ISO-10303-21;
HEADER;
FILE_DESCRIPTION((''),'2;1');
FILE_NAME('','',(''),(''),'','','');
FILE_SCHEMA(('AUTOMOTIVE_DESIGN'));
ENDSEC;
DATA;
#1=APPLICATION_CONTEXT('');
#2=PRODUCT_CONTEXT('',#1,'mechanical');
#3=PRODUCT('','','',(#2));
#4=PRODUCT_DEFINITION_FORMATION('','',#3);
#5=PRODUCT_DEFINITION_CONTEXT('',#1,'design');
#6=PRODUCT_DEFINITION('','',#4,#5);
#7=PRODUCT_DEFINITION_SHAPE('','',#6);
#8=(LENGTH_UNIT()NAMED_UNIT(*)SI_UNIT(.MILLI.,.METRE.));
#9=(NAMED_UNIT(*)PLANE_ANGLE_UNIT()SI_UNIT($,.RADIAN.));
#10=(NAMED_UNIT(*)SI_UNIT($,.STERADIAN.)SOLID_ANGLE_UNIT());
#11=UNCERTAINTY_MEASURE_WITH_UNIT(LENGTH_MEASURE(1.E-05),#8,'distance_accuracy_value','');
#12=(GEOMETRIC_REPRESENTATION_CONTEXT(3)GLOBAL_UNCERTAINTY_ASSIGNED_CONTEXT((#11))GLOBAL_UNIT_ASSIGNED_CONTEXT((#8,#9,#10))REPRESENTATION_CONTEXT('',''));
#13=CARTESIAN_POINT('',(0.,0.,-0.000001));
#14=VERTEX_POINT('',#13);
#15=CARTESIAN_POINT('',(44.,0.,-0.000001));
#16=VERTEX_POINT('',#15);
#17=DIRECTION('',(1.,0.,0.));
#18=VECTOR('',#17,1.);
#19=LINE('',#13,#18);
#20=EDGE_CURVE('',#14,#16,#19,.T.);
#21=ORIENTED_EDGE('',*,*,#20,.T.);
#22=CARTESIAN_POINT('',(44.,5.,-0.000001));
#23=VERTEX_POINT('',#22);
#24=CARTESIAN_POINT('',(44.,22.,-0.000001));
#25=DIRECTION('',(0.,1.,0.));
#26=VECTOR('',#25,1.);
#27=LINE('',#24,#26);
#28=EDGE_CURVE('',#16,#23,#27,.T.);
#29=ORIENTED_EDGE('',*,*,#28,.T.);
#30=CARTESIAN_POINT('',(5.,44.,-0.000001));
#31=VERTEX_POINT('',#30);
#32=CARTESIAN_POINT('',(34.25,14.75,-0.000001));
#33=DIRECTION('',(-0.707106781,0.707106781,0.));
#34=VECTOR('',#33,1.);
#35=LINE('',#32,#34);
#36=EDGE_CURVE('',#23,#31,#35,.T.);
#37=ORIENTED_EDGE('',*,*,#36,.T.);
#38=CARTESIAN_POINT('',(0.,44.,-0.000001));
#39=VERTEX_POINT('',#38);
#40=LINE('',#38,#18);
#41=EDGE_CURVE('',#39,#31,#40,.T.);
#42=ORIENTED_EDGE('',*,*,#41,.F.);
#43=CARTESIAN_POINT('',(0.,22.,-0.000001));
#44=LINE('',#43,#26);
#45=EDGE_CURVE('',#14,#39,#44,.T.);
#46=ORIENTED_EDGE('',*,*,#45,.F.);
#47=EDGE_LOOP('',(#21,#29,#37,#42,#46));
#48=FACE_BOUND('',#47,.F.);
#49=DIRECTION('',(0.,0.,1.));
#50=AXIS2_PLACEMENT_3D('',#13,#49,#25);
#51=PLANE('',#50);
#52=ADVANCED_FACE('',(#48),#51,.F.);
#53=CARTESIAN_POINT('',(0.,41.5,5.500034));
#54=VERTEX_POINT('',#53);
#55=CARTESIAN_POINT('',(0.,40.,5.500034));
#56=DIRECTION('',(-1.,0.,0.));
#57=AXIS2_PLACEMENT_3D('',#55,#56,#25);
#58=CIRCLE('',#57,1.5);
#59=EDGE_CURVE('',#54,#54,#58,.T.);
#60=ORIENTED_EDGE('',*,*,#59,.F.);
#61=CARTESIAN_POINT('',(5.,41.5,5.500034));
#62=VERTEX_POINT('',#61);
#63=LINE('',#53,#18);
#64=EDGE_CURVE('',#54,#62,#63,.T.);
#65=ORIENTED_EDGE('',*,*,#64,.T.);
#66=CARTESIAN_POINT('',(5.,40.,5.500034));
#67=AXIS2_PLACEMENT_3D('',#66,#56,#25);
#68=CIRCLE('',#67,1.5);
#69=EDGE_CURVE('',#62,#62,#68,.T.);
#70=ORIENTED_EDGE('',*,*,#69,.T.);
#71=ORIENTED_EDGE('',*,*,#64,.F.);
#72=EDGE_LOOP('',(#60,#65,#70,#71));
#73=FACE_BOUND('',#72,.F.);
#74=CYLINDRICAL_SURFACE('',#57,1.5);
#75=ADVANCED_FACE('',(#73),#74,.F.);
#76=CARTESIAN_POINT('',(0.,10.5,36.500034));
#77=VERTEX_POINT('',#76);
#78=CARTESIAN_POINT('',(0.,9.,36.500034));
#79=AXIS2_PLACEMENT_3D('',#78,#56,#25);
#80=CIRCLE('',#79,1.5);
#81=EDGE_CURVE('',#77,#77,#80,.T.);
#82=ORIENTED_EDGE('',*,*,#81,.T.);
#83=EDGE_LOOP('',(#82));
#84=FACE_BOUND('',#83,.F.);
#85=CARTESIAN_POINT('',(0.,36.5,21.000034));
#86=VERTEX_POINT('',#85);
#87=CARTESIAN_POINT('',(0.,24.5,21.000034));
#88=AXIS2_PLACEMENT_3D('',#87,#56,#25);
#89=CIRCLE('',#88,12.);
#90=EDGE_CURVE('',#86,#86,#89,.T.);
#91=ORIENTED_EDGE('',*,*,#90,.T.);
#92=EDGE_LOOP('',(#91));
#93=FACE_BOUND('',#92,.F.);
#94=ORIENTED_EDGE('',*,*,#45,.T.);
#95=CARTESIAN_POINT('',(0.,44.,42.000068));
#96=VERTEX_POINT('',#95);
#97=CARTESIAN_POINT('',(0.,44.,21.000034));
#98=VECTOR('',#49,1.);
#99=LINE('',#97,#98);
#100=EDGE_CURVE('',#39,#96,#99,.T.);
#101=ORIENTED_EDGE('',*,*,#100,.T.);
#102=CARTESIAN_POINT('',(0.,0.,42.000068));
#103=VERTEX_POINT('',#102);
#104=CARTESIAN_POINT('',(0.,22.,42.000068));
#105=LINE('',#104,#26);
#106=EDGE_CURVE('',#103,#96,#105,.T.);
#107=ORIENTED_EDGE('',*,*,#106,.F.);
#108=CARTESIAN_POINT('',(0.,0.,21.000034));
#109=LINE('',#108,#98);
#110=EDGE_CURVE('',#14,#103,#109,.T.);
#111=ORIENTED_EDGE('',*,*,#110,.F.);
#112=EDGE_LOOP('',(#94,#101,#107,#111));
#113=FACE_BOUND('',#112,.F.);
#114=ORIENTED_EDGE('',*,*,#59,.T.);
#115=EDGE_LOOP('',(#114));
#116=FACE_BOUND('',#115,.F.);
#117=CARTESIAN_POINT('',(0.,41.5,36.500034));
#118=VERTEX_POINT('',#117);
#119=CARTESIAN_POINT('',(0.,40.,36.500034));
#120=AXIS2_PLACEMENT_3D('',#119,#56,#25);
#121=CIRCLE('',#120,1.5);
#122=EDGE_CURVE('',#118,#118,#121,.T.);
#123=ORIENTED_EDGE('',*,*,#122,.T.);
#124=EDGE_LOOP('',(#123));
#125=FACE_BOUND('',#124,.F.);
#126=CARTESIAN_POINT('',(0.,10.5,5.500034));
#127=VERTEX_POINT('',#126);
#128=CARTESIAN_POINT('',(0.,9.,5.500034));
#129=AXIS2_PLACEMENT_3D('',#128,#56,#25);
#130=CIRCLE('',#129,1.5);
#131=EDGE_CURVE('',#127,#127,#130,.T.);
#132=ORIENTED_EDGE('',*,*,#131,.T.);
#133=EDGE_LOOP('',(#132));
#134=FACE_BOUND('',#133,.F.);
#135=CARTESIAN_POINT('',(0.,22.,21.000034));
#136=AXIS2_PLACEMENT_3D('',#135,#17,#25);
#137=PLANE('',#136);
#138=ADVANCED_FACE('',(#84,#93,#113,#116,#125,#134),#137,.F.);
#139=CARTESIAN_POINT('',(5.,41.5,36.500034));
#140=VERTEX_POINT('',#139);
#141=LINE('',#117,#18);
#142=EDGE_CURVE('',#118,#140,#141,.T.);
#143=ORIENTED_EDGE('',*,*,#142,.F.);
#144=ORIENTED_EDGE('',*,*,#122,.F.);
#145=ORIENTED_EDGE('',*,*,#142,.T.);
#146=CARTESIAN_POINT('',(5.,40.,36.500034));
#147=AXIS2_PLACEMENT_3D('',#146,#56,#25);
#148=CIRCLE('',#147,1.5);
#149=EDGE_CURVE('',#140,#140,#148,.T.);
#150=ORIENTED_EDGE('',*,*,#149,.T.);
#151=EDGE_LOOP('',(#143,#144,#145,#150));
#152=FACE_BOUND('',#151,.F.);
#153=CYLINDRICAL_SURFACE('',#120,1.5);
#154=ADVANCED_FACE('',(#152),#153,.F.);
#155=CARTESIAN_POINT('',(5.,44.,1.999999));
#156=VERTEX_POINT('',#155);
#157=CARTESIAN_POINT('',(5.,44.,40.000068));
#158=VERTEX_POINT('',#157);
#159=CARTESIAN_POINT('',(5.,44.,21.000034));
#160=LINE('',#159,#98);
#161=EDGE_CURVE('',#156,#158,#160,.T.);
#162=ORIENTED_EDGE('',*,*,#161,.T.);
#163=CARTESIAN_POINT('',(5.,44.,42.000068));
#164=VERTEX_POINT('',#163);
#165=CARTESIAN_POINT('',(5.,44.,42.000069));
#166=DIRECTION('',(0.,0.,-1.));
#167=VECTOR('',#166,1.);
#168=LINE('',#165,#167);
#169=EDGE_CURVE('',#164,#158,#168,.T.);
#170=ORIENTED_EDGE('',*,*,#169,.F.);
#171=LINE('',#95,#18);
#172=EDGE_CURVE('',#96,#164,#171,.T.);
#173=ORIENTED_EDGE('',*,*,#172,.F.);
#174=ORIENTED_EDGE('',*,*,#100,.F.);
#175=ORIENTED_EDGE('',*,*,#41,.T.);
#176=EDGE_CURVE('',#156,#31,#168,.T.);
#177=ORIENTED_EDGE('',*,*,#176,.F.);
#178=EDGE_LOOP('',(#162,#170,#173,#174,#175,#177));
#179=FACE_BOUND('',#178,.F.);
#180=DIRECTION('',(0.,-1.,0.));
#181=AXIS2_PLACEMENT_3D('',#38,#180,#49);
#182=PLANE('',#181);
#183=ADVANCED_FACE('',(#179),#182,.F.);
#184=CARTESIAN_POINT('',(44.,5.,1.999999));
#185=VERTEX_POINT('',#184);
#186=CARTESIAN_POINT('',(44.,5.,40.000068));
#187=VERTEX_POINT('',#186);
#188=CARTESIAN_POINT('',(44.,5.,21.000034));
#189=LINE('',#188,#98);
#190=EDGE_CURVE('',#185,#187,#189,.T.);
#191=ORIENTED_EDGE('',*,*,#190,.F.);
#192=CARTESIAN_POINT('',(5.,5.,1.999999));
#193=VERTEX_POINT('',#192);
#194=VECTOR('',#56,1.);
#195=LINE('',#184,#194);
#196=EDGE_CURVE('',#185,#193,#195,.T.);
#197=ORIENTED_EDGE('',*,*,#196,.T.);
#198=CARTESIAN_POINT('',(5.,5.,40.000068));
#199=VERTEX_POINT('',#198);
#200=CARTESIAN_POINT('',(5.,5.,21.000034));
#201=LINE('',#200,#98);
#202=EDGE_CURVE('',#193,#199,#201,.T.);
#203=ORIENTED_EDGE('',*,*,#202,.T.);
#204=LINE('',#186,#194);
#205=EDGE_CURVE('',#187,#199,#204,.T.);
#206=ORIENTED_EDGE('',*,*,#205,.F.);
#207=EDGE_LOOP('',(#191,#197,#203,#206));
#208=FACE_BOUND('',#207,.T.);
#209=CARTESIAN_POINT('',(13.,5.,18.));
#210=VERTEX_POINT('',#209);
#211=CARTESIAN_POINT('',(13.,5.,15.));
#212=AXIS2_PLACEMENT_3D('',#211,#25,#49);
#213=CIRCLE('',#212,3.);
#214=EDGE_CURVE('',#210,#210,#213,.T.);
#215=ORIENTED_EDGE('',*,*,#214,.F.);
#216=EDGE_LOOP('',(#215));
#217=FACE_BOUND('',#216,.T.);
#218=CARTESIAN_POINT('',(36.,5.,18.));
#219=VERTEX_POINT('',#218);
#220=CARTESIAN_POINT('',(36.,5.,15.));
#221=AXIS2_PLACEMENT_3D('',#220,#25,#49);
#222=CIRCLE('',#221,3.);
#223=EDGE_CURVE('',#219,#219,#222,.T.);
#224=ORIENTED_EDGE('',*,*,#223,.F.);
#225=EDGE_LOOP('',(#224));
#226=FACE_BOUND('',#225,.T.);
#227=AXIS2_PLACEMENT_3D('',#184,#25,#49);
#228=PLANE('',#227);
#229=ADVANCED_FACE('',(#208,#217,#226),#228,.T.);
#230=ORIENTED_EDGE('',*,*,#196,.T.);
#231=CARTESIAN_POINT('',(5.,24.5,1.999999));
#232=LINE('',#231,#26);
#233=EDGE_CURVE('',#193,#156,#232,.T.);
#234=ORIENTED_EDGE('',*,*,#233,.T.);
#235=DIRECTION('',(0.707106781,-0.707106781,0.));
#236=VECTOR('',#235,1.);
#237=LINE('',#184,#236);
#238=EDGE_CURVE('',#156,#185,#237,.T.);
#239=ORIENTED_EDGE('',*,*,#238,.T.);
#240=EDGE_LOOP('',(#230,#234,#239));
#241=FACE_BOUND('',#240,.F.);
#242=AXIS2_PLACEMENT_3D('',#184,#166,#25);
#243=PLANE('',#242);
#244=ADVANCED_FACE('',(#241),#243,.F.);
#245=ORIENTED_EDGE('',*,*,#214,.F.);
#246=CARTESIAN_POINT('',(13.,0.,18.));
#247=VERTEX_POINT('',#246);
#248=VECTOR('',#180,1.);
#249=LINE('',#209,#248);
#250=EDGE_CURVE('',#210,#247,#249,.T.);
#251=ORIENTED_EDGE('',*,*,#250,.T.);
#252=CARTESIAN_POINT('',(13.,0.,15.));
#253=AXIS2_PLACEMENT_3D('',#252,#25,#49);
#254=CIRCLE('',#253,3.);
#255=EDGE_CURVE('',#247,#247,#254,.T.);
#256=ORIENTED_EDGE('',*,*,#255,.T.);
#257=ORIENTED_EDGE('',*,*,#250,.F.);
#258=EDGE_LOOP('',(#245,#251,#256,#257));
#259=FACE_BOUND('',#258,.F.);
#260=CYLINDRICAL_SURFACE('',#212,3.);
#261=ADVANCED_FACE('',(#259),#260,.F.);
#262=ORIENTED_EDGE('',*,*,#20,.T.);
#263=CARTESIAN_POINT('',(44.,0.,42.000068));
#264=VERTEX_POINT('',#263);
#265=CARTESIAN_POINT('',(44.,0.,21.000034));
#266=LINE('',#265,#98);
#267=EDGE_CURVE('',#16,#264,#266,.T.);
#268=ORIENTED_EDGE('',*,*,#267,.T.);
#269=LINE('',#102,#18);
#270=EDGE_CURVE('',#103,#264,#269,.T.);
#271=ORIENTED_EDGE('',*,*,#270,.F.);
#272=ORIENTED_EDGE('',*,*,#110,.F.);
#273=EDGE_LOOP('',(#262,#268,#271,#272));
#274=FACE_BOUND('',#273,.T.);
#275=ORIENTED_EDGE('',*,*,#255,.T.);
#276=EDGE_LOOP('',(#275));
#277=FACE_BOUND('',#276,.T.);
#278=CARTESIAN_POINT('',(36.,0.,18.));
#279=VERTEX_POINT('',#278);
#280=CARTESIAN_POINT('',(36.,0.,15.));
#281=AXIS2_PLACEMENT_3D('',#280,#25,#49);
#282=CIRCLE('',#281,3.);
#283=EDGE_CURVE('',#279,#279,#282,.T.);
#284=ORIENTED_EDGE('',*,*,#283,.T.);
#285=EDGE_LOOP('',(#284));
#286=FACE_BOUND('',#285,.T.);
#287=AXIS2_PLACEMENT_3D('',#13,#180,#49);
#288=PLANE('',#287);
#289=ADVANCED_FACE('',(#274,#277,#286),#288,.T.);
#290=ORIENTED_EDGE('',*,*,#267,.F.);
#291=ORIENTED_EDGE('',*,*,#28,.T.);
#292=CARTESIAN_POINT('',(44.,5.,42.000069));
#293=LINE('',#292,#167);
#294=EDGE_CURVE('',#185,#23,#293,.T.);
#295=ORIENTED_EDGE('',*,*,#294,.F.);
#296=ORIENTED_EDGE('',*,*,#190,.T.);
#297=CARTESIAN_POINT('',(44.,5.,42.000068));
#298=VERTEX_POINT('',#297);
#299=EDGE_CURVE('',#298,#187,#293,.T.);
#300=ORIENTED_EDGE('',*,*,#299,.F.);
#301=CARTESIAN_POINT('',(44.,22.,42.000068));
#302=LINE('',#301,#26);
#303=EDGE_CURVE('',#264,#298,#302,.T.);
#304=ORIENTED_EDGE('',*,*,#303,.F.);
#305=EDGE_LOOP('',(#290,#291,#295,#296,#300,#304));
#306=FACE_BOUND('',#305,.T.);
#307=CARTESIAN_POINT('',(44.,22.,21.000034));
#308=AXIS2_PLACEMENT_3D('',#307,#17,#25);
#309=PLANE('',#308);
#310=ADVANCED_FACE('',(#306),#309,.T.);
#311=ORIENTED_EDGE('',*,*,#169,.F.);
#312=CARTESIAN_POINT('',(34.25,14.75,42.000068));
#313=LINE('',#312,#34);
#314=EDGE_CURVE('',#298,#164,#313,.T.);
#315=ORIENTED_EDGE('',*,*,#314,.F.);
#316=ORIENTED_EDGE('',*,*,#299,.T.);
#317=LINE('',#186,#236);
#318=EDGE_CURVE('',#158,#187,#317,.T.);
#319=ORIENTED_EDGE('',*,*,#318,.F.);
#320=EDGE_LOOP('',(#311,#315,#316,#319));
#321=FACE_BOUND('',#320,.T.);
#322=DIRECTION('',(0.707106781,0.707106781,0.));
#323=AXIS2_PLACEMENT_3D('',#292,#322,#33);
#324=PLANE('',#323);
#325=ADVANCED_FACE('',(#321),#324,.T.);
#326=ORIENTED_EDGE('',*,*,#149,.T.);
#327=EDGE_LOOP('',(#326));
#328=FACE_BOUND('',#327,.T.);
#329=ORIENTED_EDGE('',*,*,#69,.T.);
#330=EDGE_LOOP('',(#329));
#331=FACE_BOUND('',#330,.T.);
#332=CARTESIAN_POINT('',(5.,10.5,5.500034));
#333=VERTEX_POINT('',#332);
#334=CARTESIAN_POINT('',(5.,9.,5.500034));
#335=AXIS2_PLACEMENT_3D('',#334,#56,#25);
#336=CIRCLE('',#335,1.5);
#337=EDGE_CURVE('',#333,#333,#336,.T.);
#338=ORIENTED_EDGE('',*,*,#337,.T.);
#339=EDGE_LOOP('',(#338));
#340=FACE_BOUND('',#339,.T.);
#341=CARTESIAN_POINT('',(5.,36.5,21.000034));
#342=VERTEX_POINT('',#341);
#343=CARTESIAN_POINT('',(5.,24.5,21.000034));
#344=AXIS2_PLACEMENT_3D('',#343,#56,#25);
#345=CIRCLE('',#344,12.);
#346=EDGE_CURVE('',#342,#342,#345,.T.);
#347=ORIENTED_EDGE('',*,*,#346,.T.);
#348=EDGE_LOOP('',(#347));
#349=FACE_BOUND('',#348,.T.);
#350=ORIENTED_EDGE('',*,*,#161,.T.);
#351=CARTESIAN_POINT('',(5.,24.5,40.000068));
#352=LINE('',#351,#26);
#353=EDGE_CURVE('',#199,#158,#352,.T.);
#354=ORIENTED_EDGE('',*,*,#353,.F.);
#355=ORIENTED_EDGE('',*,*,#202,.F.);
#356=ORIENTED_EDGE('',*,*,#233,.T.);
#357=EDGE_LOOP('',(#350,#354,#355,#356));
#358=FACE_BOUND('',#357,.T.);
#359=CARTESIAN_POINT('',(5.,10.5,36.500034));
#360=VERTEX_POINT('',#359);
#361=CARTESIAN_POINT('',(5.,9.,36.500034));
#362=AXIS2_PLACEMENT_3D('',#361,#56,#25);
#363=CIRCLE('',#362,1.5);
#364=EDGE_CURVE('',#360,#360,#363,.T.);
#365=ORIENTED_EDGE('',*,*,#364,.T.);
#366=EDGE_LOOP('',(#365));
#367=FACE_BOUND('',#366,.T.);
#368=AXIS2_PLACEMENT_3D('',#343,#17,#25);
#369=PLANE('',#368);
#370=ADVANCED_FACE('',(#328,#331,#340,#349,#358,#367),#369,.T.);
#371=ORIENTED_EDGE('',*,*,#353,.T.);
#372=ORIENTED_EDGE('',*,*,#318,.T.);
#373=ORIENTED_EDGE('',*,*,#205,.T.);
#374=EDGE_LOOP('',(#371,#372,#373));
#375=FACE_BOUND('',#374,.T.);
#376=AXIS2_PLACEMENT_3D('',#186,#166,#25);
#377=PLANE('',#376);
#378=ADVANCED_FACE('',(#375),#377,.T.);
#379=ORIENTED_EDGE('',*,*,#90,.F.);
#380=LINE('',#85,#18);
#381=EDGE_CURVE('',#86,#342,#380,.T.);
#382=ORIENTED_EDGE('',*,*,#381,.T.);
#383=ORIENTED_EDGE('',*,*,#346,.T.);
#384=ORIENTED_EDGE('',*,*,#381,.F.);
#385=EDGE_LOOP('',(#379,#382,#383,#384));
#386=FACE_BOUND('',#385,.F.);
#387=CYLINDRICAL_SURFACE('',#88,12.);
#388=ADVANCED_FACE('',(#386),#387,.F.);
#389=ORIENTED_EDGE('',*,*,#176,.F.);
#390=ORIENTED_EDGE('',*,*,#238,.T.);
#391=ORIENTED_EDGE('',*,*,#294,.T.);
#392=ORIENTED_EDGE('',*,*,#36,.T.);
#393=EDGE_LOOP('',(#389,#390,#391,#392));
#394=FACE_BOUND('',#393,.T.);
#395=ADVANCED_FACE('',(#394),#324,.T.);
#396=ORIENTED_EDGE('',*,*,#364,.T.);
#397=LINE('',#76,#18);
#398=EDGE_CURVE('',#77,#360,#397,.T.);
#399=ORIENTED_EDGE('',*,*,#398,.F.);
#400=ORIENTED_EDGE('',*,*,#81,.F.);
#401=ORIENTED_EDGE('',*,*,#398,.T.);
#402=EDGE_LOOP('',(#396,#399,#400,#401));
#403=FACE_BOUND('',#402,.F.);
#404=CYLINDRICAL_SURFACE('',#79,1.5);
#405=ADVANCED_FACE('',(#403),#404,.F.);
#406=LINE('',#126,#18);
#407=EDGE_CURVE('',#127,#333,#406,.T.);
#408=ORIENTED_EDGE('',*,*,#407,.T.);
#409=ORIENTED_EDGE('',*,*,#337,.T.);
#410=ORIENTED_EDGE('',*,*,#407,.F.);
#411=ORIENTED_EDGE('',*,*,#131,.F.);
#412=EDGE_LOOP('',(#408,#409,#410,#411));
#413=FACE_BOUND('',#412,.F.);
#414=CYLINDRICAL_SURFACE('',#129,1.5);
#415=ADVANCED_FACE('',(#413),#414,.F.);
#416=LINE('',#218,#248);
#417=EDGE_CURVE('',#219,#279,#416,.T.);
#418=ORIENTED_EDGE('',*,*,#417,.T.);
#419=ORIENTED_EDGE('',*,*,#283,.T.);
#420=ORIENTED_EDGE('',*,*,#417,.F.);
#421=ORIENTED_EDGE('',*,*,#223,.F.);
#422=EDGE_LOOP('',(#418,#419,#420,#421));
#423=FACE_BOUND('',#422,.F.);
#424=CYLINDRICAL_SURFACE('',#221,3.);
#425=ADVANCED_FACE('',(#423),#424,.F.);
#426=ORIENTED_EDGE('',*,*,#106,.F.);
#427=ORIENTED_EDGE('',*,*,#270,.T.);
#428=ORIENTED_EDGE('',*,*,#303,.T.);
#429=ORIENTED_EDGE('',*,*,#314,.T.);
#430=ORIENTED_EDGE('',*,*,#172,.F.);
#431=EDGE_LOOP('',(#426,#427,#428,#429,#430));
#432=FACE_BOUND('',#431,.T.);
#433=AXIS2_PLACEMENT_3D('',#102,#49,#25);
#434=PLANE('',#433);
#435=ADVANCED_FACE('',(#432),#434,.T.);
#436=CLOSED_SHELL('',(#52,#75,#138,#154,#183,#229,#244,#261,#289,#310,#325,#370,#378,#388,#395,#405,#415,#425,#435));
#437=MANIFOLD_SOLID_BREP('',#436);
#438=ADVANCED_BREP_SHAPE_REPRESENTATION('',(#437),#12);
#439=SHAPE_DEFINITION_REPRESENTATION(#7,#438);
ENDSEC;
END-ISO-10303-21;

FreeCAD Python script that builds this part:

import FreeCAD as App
import Part
import Sketcher


def add_polygon(sketch, points):
    """Adds a closed chain of lines whose ends are joined by coincident constraints."""
    first, n = sketch.GeometryCount, len(points)
    for a, b in zip(points, points[1:] + points[:1]):
        sketch.addGeometry(Part.LineSegment(App.Vector(*a, 0), App.Vector(*b, 0)), False)
    for i in range(n):
        sketch.addConstraint(Sketcher.Constraint("Coincident", first + i, 2, first + (i + 1) % n, 1))

doc = App.newDocument("Part")
body = doc.addObject("PartDesign::Body", "Body")

# Sketch on YZ plane
sketch1 = doc.addObject("Sketcher::SketchObject", "Sketch")
body.addObject(sketch1)
sketch1.AttachmentSupport = (doc.YZ_Plane, [""])
sketch1.MapMode = "FlatFace"
add_polygon(sketch1, [(0, 42), (0, 0), (44, 0), (44, 42)])  # lines 0-3
sketch1.addConstraint(Sketcher.Constraint("Vertical", 0))
sketch1.addConstraint(Sketcher.Constraint("Horizontal", 1))
sketch1.addConstraint(Sketcher.Constraint("Vertical", 2))
sketch1.addConstraint(Sketcher.Constraint("Horizontal", 3))
sketch1.addConstraint(Sketcher.Constraint("Coincident", 0, 2, -1, 1))
sketch1.addConstraint(Sketcher.Constraint("DistanceX", 1, 1, 1, 2, 44.0))
sketch1.addConstraint(Sketcher.Constraint("DistanceY", 0, 2, 0, 1, 42.000069))
pad1 = doc.addObject("PartDesign::Pad", "Pad")
body.addObject(pad1)
pad1.Profile = sketch1
pad1.Length = 44

# Sketch on YZ plane
sketch2 = doc.addObject("Sketcher::SketchObject", "Sketch001")
body.addObject(sketch2)
sketch2.AttachmentSupport = (doc.YZ_Plane, [""])
sketch2.MapMode = "FlatFace"
sketch2.AttachmentOffset = App.Placement(App.Vector(0, 0, 44), App.Rotation())
add_polygon(sketch2, [(5, 40), (5, 2), (44, 2), (44, 40)])  # lines 0-3
sketch2.addConstraint(Sketcher.Constraint("Vertical", 0))
sketch2.addConstraint(Sketcher.Constraint("Horizontal", 1))
sketch2.addConstraint(Sketcher.Constraint("Vertical", 2))
sketch2.addConstraint(Sketcher.Constraint("Horizontal", 3))
sketch2.addConstraint(Sketcher.Constraint("DistanceX", 1, 1, 1, 2, 39.0))
sketch2.addConstraint(Sketcher.Constraint("DistanceX", -1, 1, 0, 2, 5.0))
sketch2.addConstraint(Sketcher.Constraint("DistanceY", -1, 1, 0, 2, 1.999999))
sketch2.addConstraint(Sketcher.Constraint("DistanceY", 0, 2, 0, 1, 38.000069))
pocket1 = doc.addObject("PartDesign::Pocket", "Pocket")
body.addObject(pocket1)
pocket1.Profile = sketch2
pocket1.Length = 39

# Sketch on XY plane
sketch3 = doc.addObject("Sketcher::SketchObject", "Sketch002")
body.addObject(sketch3)
sketch3.AttachmentSupport = (doc.XY_Plane, [""])
sketch3.MapMode = "FlatFace"
sketch3.AttachmentOffset = App.Placement(App.Vector(0, 0, 42.000069), App.Rotation())
add_polygon(sketch3, [(44, 44), (5, 44), (44, 5)])  # lines 0-2
sketch3.addConstraint(Sketcher.Constraint("Horizontal", 0))
sketch3.addConstraint(Sketcher.Constraint("Vertical", 2))
sketch3.addConstraint(Sketcher.Constraint("Equal", 0, 2))
sketch3.addConstraint(Sketcher.Constraint("DistanceX", 0, 2, 0, 1, 39.0))
sketch3.addConstraint(Sketcher.Constraint("DistanceX", -1, 1, 0, 2, 5.0))
sketch3.addConstraint(Sketcher.Constraint("DistanceY", -1, 1, 0, 2, 44.0))
pocket2 = doc.addObject("PartDesign::Pocket", "Pocket001")
body.addObject(pocket2)
pocket2.Profile = sketch3
pocket2.Type = "ThroughAll"

# Sketch on YZ plane
sketch4 = doc.addObject("Sketcher::SketchObject", "Sketch003")
body.addObject(sketch4)
sketch4.AttachmentSupport = (doc.YZ_Plane, [""])
sketch4.MapMode = "FlatFace"
sketch4.addGeometry(Part.Circle(App.Vector(9, 5.5, 0), App.Vector(0, 0, 1), 1.5), False)
sketch4.addGeometry(Part.Circle(App.Vector(40, 5.5, 0), App.Vector(0, 0, 1), 1.5), False)
sketch4.addGeometry(Part.Circle(App.Vector(9, 36.5, 0), App.Vector(0, 0, 1), 1.5), False)
sketch4.addGeometry(Part.Circle(App.Vector(40, 36.5, 0), App.Vector(0, 0, 1), 1.5), False)
sketch4.addGeometry(Part.Circle(App.Vector(24.5, 21, 0), App.Vector(0, 0, 1), 12), False)
sketch4.addConstraint(Sketcher.Constraint("Equal", 0, 1))
sketch4.addConstraint(Sketcher.Constraint("Equal", 1, 2))
sketch4.addConstraint(Sketcher.Constraint("Equal", 2, 3))
sketch4.addConstraint(Sketcher.Constraint("Horizontal", 0, 3, 1, 3))
sketch4.addConstraint(Sketcher.Constraint("Horizontal", 2, 3, 3, 3))
sketch4.addConstraint(Sketcher.Constraint("Vertical", 0, 3, 2, 3))
sketch4.addConstraint(Sketcher.Constraint("Vertical", 1, 3, 3, 3))
sketch4.addConstraint(Sketcher.Constraint("Diameter", 0, 3.0))
sketch4.addConstraint(Sketcher.Constraint("Diameter", 4, 24.0))
sketch4.addConstraint(Sketcher.Constraint("DistanceX", -1, 1, 0, 3, 9.0))
sketch4.addConstraint(Sketcher.Constraint("DistanceX", -1, 1, 1, 3, 40.0))
sketch4.addConstraint(Sketcher.Constraint("DistanceY", 0, 3, 2, 3, 31.0))
sketch4.addConstraint(Sketcher.Constraint("DistanceX", -1, 1, 4, 3, 24.5))
sketch4.addConstraint(Sketcher.Constraint("DistanceY", 0, 3, 4, 3, 15.5))
sketch4.addConstraint(Sketcher.Constraint("DistanceY", -1, 1, 0, 3, 5.500034))
pocket3 = doc.addObject("PartDesign::Pocket", "Pocket002")
body.addObject(pocket3)
pocket3.Profile = sketch4
pocket3.Type = "ThroughAll"
pocket3.Reversed = True

# Sketch on XZ plane
sketch5 = doc.addObject("Sketcher::SketchObject", "Sketch004")
body.addObject(sketch5)
sketch5.AttachmentSupport = (doc.XZ_Plane, [""])
sketch5.MapMode = "FlatFace"
sketch5.AttachmentOffset = App.Placement(App.Vector(0, 0, -5), App.Rotation())
sketch5.addGeometry(Part.Circle(App.Vector(36, 15, 0), App.Vector(0, 0, 1), 3), False)
sketch5.addGeometry(Part.Circle(App.Vector(13, 15, 0), App.Vector(0, 0, 1), 3), False)
sketch5.addConstraint(Sketcher.Constraint("Equal", 0, 1))
sketch5.addConstraint(Sketcher.Constraint("Horizontal", 0, 3, 1, 3))
sketch5.addConstraint(Sketcher.Constraint("Diameter", 0, 6.0))
sketch5.addConstraint(Sketcher.Constraint("DistanceX", -1, 1, 0, 3, 36.0))
sketch5.addConstraint(Sketcher.Constraint("DistanceY", -1, 1, 0, 3, 15.0))
sketch5.addConstraint(Sketcher.Constraint("DistanceX", -1, 1, 1, 3, 13.0))
pocket4 = doc.addObject("PartDesign::Pocket", "Pocket003")
body.addObject(pocket4)
pocket4.Profile = sketch5
pocket4.Type = "ThroughAll"
pocket4.Reversed = True

doc.recompute()
